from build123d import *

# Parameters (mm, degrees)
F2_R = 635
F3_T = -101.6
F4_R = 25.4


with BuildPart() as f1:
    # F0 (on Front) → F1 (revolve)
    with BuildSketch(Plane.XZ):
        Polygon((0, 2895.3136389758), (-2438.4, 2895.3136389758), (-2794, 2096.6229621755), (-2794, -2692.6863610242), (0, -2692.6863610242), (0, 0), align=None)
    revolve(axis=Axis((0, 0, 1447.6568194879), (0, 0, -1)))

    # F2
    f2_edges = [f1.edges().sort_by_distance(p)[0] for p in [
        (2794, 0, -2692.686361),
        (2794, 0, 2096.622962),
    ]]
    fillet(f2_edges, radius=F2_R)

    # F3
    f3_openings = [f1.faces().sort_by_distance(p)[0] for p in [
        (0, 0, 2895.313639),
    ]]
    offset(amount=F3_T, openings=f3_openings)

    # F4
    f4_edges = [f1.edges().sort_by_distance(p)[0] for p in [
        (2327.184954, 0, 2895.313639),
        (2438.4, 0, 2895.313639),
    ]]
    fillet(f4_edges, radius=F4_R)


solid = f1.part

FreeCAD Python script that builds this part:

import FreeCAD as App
import Part
import Sketcher
from FreeCAD import Vector
Q = App.Units.Quantity


def edges_at(feature, points):
    """Names of the edges that pass closest to the given points."""
    edges = feature.Shape.Edges
    near = lambda p: min(range(len(edges)), key=lambda i: edges[i].distToShape(Part.Vertex(*p))[0])
    return sorted({f"Edge{near(p) + 1}" for p in points})


def faces_at(feature, points):
    """Names of the faces that lie closest to the given points."""
    faces = feature.Shape.Faces
    near = lambda p: min(range(len(faces)), key=lambda i: faces[i].distToShape(Part.Vertex(*p))[0])
    return sorted({f"Face{near(p) + 1}" for p in points})

doc = App.newDocument("Part")
body = doc.addObject("PartDesign::Body", "Body")

sketch1 = body.newObject("Sketcher::SketchObject", "Sketch")
sketch1.AttachmentSupport = (doc.getObject("XZ_Plane"), [""])
sketch1.MapMode = "FlatFace"
sketch1.addGeometry([
    Part.LineSegment(Vector(0, 2895.313639, 0), Vector(-2438.4, 2895.313639, 0)),
    Part.LineSegment(Vector(-2438.4, 2895.313639, 0), Vector(-2794, 2096.622962, 0)),
    Part.LineSegment(Vector(-2794, 2096.622962, 0), Vector(-2794, -2692.686361, 0)),
    Part.LineSegment(Vector(-2794, -2692.686361, 0), Vector(0, -2692.686361, 0)),
    Part.LineSegment(Vector(0, -2692.686361, 0), Vector(0, 2895.313639, 0)),
], False)
sketch1.addConstraint([
    Sketcher.Constraint("Coincident", 0, 2, 1, 1),
    Sketcher.Constraint("Coincident", 1, 2, 2, 1),
    Sketcher.Constraint("Coincident", 2, 2, 3, 1),
    Sketcher.Constraint("Coincident", 3, 2, 4, 1),
    Sketcher.Constraint("Coincident", 4, 2, 0, 1),
    Sketcher.Constraint("Horizontal", 0),
    Sketcher.Constraint("Vertical", 2),
    Sketcher.Constraint("Horizontal", 3),
    Sketcher.Constraint("Vertical", 4),
    Sketcher.Constraint("PointOnObject", 3, 2, -2),
    Sketcher.Constraint("DistanceX", 0, 2, 0, 1, Q("96 in")),
    Sketcher.Constraint("DistanceX", 3, 1, 3, 2, Q("110 in")),
    Sketcher.Constraint("DistanceY", 4, 1, 4, 2, Q("220 in")),
    Sketcher.Constraint("Angle", 1, Q("-114 deg")),
    Sketcher.Constraint("DistanceY", -1, 1, 0, 2, Q("2895.313639 mm")),
])
revolution = body.newObject("PartDesign::Revolution", "Revolution")
revolution.Profile = sketch1
revolution.ReferenceAxis = (sketch1, ["V_Axis"])
revolution.Angle = 360
doc.recompute()

fillet = body.newObject("PartDesign::Fillet", "Fillet")
fillet.Base = (revolution, edges_at(revolution, [(2794, 0, -2692.686), (2794, 0, 2096.623)]))
fillet.Radius = Q("25 in")
doc.recompute()

thickness = body.newObject("PartDesign::Thickness", "Thickness")
thickness.Base = (fillet, faces_at(fillet, [(0, 0, 2895.314)]))
thickness.Value = Q("4 in")
thickness.Reversed = True
thickness.Join = "Arc"
doc.recompute()

fillet2 = body.newObject("PartDesign::Fillet", "Fillet001")
fillet2.Base = (thickness, edges_at(thickness, [(2327.185, 0, 2895.314), (2438.4, 0, 2895.314)]))
fillet2.Radius = Q("1 in")

doc.recompute()
